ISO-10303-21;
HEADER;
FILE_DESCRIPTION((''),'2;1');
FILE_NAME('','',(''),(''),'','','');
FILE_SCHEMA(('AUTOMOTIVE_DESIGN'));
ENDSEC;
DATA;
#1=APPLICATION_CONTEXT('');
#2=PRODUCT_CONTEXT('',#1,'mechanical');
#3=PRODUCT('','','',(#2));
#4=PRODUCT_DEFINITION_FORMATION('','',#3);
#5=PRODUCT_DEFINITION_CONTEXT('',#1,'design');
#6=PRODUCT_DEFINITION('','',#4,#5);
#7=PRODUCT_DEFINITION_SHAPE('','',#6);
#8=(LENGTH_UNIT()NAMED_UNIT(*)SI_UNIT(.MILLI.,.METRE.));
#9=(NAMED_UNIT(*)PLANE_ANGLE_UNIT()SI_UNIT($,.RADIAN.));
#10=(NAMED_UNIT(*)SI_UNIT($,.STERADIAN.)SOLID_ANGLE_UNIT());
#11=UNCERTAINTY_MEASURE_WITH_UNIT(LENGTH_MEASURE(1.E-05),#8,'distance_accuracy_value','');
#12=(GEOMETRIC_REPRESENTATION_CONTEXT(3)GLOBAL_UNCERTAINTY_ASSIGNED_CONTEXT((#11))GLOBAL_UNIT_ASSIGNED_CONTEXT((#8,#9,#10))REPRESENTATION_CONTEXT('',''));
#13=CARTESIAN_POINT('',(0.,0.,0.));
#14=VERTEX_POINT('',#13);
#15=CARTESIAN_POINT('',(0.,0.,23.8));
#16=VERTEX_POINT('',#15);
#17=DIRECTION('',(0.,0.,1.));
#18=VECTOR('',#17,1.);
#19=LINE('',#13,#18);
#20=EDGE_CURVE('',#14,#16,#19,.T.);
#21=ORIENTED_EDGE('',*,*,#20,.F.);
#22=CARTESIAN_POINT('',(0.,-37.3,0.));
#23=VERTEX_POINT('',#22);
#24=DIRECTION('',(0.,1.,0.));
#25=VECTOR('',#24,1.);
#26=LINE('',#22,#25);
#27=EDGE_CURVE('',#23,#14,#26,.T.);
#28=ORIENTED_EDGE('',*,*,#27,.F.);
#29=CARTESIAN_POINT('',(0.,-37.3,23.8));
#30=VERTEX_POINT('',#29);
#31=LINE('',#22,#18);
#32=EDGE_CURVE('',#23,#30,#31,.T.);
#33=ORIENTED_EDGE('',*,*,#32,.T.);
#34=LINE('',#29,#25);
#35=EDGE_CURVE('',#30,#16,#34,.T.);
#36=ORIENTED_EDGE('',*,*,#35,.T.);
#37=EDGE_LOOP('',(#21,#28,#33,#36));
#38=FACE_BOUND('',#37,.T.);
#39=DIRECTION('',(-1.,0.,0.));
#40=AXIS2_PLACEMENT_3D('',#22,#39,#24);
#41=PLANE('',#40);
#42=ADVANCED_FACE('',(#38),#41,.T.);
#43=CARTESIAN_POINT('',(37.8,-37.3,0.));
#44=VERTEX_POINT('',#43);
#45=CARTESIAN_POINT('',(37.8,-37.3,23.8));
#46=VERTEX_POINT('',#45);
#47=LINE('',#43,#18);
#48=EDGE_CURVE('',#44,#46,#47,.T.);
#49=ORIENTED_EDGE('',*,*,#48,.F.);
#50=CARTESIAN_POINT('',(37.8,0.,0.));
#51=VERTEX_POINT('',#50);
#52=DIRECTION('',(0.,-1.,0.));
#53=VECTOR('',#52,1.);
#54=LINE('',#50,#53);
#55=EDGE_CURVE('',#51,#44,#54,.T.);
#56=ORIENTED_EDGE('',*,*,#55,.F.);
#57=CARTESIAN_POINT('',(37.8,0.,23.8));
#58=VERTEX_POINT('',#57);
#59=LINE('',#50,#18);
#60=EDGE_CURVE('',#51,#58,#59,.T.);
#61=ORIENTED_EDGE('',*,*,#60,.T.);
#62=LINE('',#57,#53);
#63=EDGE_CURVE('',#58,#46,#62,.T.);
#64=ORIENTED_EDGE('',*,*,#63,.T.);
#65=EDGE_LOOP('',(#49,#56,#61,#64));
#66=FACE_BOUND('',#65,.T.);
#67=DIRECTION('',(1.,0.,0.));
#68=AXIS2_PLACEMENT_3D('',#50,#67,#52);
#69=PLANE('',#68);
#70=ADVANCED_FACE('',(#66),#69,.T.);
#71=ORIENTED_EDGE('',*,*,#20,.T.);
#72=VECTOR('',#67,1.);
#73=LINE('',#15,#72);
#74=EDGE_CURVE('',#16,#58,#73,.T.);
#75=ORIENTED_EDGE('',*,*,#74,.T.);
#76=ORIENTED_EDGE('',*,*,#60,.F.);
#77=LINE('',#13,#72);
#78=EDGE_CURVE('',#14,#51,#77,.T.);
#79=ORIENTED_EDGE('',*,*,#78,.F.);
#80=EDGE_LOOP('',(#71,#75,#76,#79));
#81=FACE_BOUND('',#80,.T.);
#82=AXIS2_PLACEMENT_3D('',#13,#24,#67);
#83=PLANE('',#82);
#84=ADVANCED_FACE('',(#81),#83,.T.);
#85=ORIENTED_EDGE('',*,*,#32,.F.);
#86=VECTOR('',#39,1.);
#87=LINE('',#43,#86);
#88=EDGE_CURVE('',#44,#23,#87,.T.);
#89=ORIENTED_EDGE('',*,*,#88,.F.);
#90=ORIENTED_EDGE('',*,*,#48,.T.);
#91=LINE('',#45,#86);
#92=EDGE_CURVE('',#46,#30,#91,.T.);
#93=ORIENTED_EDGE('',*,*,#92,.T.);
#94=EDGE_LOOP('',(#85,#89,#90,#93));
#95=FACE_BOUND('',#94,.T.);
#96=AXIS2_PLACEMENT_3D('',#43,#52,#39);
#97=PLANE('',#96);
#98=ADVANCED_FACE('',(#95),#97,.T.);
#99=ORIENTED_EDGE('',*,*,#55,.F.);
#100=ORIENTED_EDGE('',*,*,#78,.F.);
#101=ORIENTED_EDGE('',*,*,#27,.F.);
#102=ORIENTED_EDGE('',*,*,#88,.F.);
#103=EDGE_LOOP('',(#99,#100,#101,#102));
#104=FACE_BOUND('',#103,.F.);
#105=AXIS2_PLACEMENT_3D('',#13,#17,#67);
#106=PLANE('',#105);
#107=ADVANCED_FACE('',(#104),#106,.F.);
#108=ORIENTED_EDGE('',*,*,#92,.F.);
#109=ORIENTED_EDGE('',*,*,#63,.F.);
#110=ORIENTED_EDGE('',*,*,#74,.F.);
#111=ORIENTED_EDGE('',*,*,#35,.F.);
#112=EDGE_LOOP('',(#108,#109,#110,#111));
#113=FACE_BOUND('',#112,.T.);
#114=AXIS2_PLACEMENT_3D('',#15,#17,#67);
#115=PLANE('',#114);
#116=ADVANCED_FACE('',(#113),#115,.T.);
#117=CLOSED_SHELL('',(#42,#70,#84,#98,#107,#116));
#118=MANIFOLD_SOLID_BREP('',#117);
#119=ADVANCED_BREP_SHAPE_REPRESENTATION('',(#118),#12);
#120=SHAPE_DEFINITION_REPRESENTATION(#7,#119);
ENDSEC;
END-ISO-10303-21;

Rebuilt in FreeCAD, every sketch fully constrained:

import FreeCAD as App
import Part
import Sketcher
from FreeCAD import Vector
Q = App.Units.Quantity


def add_polygon(sketch, points):
    """Adds a closed chain of lines whose ends are joined by coincident constraints."""
    first, n = sketch.GeometryCount, len(points)
    for a, b in zip(points, points[1:] + points[:1]):
        sketch.addGeometry(Part.LineSegment(App.Vector(*a, 0), App.Vector(*b, 0)), False)
    for i in range(n):
        sketch.addConstraint(Sketcher.Constraint("Coincident", first + i, 2, first + (i + 1) % n, 1))

doc = App.newDocument("Part")
body = doc.addObject("PartDesign::Body", "Body")

# Sketch on XY plane
sketch1 = body.newObject("Sketcher::SketchObject", "Sketch")
sketch1.AttachmentSupport = (doc.getObject("XY_Plane"), [""])
sketch1.MapMode = "FlatFace"
add_polygon(sketch1, [(37.8, 0), (0, 0), (0, -37.3), (37.8, -37.3)])  # lines 0-3
sketch1.addConstraint([
    Sketcher.Constraint("Horizontal", 0),
    Sketcher.Constraint("Vertical", 1),
    Sketcher.Constraint("Horizontal", 2),
    Sketcher.Constraint("Vertical", 3),
    Sketcher.Constraint("Coincident", 0, 2, -1, 1),
    Sketcher.Constraint("DistanceX", 0, 2, 0, 1, Q("1.4882 in")),
    Sketcher.Constraint("DistanceY", 1, 2, 1, 1, Q("1.4685 in")),
])
pad1 = body.newObject("PartDesign::Pad", "Pad")
pad1.Profile = sketch1
pad1.Length = Q("0.9370079 in")

doc.recompute()
